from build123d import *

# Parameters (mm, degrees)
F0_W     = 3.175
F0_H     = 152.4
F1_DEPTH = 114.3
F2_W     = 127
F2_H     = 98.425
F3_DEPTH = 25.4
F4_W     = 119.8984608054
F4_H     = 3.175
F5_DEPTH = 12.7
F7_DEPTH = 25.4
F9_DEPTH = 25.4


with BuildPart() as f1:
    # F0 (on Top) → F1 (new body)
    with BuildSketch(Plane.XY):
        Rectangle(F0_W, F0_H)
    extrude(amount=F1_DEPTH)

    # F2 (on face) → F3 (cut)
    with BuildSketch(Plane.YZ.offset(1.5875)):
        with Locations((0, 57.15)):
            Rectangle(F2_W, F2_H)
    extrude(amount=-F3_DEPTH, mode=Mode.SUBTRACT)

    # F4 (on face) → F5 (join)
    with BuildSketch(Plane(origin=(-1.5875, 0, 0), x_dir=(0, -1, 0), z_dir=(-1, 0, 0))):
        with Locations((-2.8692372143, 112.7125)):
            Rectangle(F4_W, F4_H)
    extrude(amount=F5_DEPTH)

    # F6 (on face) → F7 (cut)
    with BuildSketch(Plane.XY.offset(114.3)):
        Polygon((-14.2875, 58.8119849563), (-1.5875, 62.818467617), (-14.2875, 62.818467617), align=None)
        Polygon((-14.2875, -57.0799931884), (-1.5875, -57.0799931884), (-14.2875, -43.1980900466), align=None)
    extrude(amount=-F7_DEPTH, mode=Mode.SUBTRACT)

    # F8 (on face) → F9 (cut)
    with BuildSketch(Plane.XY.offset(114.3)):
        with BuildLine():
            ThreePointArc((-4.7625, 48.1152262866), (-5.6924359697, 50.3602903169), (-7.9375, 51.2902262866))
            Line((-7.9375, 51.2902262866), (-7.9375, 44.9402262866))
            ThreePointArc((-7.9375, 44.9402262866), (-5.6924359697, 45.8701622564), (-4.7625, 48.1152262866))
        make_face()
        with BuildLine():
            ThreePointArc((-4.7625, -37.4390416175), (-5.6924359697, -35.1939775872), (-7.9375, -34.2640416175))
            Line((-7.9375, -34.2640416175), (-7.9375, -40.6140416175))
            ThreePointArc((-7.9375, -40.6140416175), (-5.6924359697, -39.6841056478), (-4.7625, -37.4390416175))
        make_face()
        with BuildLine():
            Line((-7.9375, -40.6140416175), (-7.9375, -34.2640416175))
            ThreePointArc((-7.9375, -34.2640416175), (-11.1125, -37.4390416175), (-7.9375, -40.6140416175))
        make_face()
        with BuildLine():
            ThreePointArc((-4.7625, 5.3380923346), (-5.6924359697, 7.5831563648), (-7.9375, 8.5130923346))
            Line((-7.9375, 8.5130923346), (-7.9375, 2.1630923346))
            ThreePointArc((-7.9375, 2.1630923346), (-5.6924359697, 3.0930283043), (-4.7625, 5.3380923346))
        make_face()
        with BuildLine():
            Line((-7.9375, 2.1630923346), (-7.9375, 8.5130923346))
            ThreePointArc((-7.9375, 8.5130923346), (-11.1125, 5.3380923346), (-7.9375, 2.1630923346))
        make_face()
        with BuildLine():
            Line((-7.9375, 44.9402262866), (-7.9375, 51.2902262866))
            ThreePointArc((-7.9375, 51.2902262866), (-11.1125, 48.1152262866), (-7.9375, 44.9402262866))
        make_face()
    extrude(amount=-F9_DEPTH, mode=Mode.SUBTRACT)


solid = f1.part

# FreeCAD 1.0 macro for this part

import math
import FreeCAD as App
import Part
import Sketcher
from FreeCAD import Vector
Q = App.Units.Quantity

doc = App.newDocument("Part")
body = doc.addObject("PartDesign::Body", "Body")

# Sketch on XY plane
sketch1 = doc.addObject("Sketcher::SketchObject", "Sketch")
body.addObject(sketch1)
sketch1.AttachmentSupport = (doc.XY_Plane, [""])
sketch1.MapMode = "FlatFace"
sketch1.addGeometry([
    Part.LineSegment(Vector(-1.6, 76.2, 0), Vector(-1.6, -76.2, 0)),
    Part.LineSegment(Vector(-1.6, -76.2, 0), Vector(1.6, -76.2, 0)),
    Part.LineSegment(Vector(1.6, -76.2, 0), Vector(1.6, 76.2, 0)),
    Part.LineSegment(Vector(1.6, 76.2, 0), Vector(-1.6, 76.2, 0)),
], False)
sketch1.addConstraint([
    Sketcher.Constraint("Coincident", 0, 2, 1, 1),
    Sketcher.Constraint("Coincident", 1, 2, 2, 1),
    Sketcher.Constraint("Coincident", 2, 2, 3, 1),
    Sketcher.Constraint("Coincident", 3, 2, 0, 1),
    Sketcher.Constraint("Vertical", 0),
    Sketcher.Constraint("Horizontal", 1),
    Sketcher.Constraint("Vertical", 2),
    Sketcher.Constraint("Horizontal", 3),
    Sketcher.Constraint("Symmetric", 0, 2, 2, 2, -1, 1),
    Sketcher.Constraint("DistanceY", 0, 2, 0, 1, Q("6 in")),
    Sketcher.Constraint("DistanceX", 1, 1, 1, 2, Q("0.125 in")),
])
pad1 = doc.addObject("PartDesign::Pad", "Pad")
body.addObject(pad1)
pad1.Profile = sketch1
pad1.Length = Q("4.5 in")

# Sketch on YZ plane
sketch2 = doc.addObject("Sketcher::SketchObject", "Sketch001")
body.addObject(sketch2)
sketch2.AttachmentSupport = (doc.YZ_Plane, [""])
sketch2.MapMode = "FlatFace"
sketch2.AttachmentOffset = App.Placement(Vector(0, 0, 0.0625 * 25.4), App.Rotation())
sketch2.addGeometry([
    Part.LineSegment(Vector(-64, 106, 0), Vector(-64, 8, 0)),
    Part.LineSegment(Vector(-64, 8, 0), Vector(64, 8, 0)),
    Part.LineSegment(Vector(64, 8, 0), Vector(64, 106, 0)),
    Part.LineSegment(Vector(64, 106, 0), Vector(-64, 106, 0)),
], False)
sketch2.addConstraint([
    Sketcher.Constraint("Coincident", 0, 2, 1, 1),
    Sketcher.Constraint("Coincident", 1, 2, 2, 1),
    Sketcher.Constraint("Coincident", 2, 2, 3, 1),
    Sketcher.Constraint("Coincident", 3, 2, 0, 1),
    Sketcher.Constraint("Vertical", 0),
    Sketcher.Constraint("Horizontal", 1),
    Sketcher.Constraint("Vertical", 2),
    Sketcher.Constraint("Horizontal", 3),
    Sketcher.Constraint("DistanceX", 1, 1, 1, 2, Q("5 in")),
    Sketcher.Constraint("DistanceX", 0, 2, -1, 1, Q("2.5 in")),
    Sketcher.Constraint("DistanceY", 0, 2, 0, 1, Q("3.875 in")),
    Sketcher.Constraint("DistanceY", -1, 1, 0, 2, Q("0.3125 in")),
])
pocket1 = doc.addObject("PartDesign::Pocket", "Pocket")
body.addObject(pocket1)
pocket1.Profile = sketch2
pocket1.Length = Q("1 in")

# Sketch on YZ plane
sketch3 = doc.addObject("Sketcher::SketchObject", "Sketch002")
body.addObject(sketch3)
sketch3.AttachmentSupport = (doc.YZ_Plane, [""])
sketch3.MapMode = "FlatFace"
sketch3.AttachmentOffset = App.Placement(Vector(0, 0, -0.0625 * 25.4), App.Rotation())
sketch3.addGeometry([
    Part.LineSegment(Vector(62.8, 114.3, 0), Vector(62.8, 111.1, 0)),
    Part.LineSegment(Vector(62.8, 111.1, 0), Vector(-57.1, 111.1, 0)),
    Part.LineSegment(Vector(-57.1, 111.1, 0), Vector(-57.1, 114.3, 0)),
    Part.LineSegment(Vector(-57.1, 114.3, 0), Vector(62.8, 114.3, 0)),
], False)
sketch3.addConstraint([
    Sketcher.Constraint("Coincident", 0, 2, 1, 1),
    Sketcher.Constraint("Coincident", 1, 2, 2, 1),
    Sketcher.Constraint("Coincident", 2, 2, 3, 1),
    Sketcher.Constraint("Coincident", 3, 2, 0, 1),
    Sketcher.Constraint("Vertical", 0),
    Sketcher.Constraint("Horizontal", 1),
    Sketcher.Constraint("Vertical", 2),
    Sketcher.Constraint("Horizontal", 3),
    Sketcher.Constraint("DistanceY", -1, 1, 2, 2, Q("4.5 in")),
    Sketcher.Constraint("DistanceY", 0, 2, 0, 1, Q("0.125 in")),
    Sketcher.Constraint("DistanceX", 1, 2, 1, 1, Q("119.898461 mm")),
    Sketcher.Constraint("DistanceX", -1, 1, 0, 2, Q("62.818468 mm")),
])
pad2 = doc.addObject("PartDesign::Pad", "Pad001")
body.addObject(pad2)
pad2.Profile = sketch3
pad2.Length = Q("0.5 in")
pad2.Reversed = True

# Sketch on XY plane
sketch4 = doc.addObject("Sketcher::SketchObject", "Sketch003")
body.addObject(sketch4)
sketch4.AttachmentSupport = (doc.XY_Plane, [""])
sketch4.MapMode = "FlatFace"
sketch4.AttachmentOffset = App.Placement(Vector(0, 0, 4.5 * 25.4), App.Rotation())
sketch4.addGeometry([
    Part.LineSegment(Vector(-14.3, 58.8, 0), Vector(-1.6, 62.8, 0)),  # 0
    Part.LineSegment(Vector(-1.6, 62.8, 0), Vector(-14.3, 62.8, 0)),  # 1
    Part.LineSegment(Vector(-14.3, 62.8, 0), Vector(-14.3, 58.8, 0)),  # 2
    Part.LineSegment(Vector(-14.3, -57.1, 0), Vector(-1.6, -57.1, 0)),  # 3
    Part.LineSegment(Vector(-1.6, -57.1, 0), Vector(-14.3, -43.2, 0)),  # 4
    Part.LineSegment(Vector(-14.3, -43.2, 0), Vector(-14.3, -57.1, 0)),  # 5
], False)
sketch4.addConstraint([
    Sketcher.Constraint("Coincident", 0, 2, 1, 1),
    Sketcher.Constraint("Coincident", 1, 2, 2, 1),
    Sketcher.Constraint("Coincident", 2, 2, 0, 1),
    Sketcher.Constraint("Coincident", 3, 2, 4, 1),
    Sketcher.Constraint("Coincident", 4, 2, 5, 1),
    Sketcher.Constraint("Coincident", 5, 2, 3, 1),
    Sketcher.Constraint("Horizontal", 1),
    Sketcher.Constraint("Vertical", 2),
    Sketcher.Constraint("Horizontal", 3),
    Sketcher.Constraint("Vertical", 5),
    Sketcher.Constraint("Vertical", 0, 2, 3, 2),
    Sketcher.Constraint("Vertical", 2, 2, 4, 2),
    Sketcher.Constraint("DistanceX", 1, 2, 1, 1, Q("0.5 in")),
    Sketcher.Constraint("DistanceX", 0, 2, -1, 1, Q("0.0625 in")),
    Sketcher.Constraint("Distance", 0, Q("13.316978 mm")),
    Sketcher.Constraint("DistanceY", 5, 2, 5, 1, Q("13.881903 mm")),
    Sketcher.Constraint("DistanceY", 4, 2, -1, 1, Q("43.19809 mm")),
    Sketcher.Constraint("DistanceY", 3, 2, 2, 2, Q("115.891978 mm")),
])
pocket2 = doc.addObject("PartDesign::Pocket", "Pocket001")
body.addObject(pocket2)
pocket2.Profile = sketch4
pocket2.Length = Q("1 in")

# Sketch on XY plane
sketch5 = doc.addObject("Sketcher::SketchObject", "Sketch004")
body.addObject(sketch5)
sketch5.AttachmentSupport = (doc.XY_Plane, [""])
sketch5.MapMode = "FlatFace"
sketch5.AttachmentOffset = App.Placement(Vector(0, 0, 4.5 * 25.4), App.Rotation())
sketch5.addGeometry([
    Part.ArcOfCircle(Part.Circle(Vector(-7.9, 48.1, 0), Vector(0, 0, 1), 3.2), math.radians(0), math.radians(90)),  # 0
    Part.ArcOfCircle(Part.Circle(Vector(-7.9, 48.1, 0), Vector(0, 0, 1), 3.2), math.radians(90), math.radians(270)),  # 1
    Part.ArcOfCircle(Part.Circle(Vector(-7.9, 48.1, 0), Vector(0, 0, 1), 3.2), math.radians(-90), math.radians(0)),  # 2
    Part.ArcOfCircle(Part.Circle(Vector(-7.9, -37.4, 0), Vector(0, 0, 1), 3.2), math.radians(0), math.radians(90)),  # 3
    Part.ArcOfCircle(Part.Circle(Vector(-7.9, -37.4, 0), Vector(0, 0, 1), 3.2), math.radians(90), math.radians(270)),  # 4
    Part.ArcOfCircle(Part.Circle(Vector(-7.9, -37.4, 0), Vector(0, 0, 1), 3.2), math.radians(-90), math.radians(0)),  # 5
    Part.ArcOfCircle(Part.Circle(Vector(-7.9, 5.3, 0), Vector(0, 0, 1), 3.2), math.radians(0), math.radians(90)),  # 6
    Part.ArcOfCircle(Part.Circle(Vector(-7.9, 5.3, 0), Vector(0, 0, 1), 3.2), math.radians(90), math.radians(270)),  # 7
    Part.ArcOfCircle(Part.Circle(Vector(-7.9, 5.3, 0), Vector(0, 0, 1), 3.2), math.radians(-90), math.radians(0)),  # 8
], False)
sketch5.addConstraint([
    Sketcher.Constraint("Tangent", 0, 2, 1, 1),
    Sketcher.Constraint("Tangent", 1, 2, 2, 1),
    Sketcher.Constraint("Tangent", 2, 2, 0, 1),
    Sketcher.Constraint("Tangent", 3, 2, 4, 1),
    Sketcher.Constraint("Tangent", 4, 2, 5, 1),
    Sketcher.Constraint("Tangent", 5, 2, 3, 1),
    Sketcher.Constraint("Tangent", 6, 2, 7, 1),
    Sketcher.Constraint("Tangent", 7, 2, 8, 1),
    Sketcher.Constraint("Tangent", 8, 2, 6, 1),
    Sketcher.Constraint("Equal", 2, 3),
    Sketcher.Constraint("Equal", 5, 6),
    Sketcher.Constraint("Horizontal", 1, 3, 2, 2),
    Sketcher.Constraint("Horizontal", 4, 3, 5, 2),
    Sketcher.Constraint("Horizontal", 7, 3, 8, 2),
    Sketcher.Constraint("Vertical", 2, 3, 3, 3),
    Sketcher.Constraint("Vertical", 5, 3, 6, 3),
    Sketcher.Constraint("Vertical", 8, 3, 0, 2),
    Sketcher.Constraint("Vertical", 0, 2, 1, 2),
    Sketcher.Constraint("Vertical", 1, 2, 3, 2),
    Sketcher.Constraint("Vertical", 3, 2, 4, 2),
    Sketcher.Constraint("Vertical", 4, 2, 6, 2),
    Sketcher.Constraint("Vertical", 6, 2, 7, 2),
    Sketcher.Constraint("Radius", 0, Q("0.125 in")),
    Sketcher.Constraint("DistanceX", 0, 3, -1, 1, Q("0.3125 in")),
    Sketcher.Constraint("DistanceY", 3, 3, -1, 1, Q("37.439042 mm")),
    Sketcher.Constraint("DistanceY", -1, 1, 0, 3, Q("48.115226 mm")),
    Sketcher.Constraint("DistanceY", -1, 1, 6, 3, Q("5.338092 mm")),
])
pocket3 = doc.addObject("PartDesign::Pocket", "Pocket002")
body.addObject(pocket3)
pocket3.Profile = sketch5
pocket3.Length = Q("1 in")

doc.recompute()
